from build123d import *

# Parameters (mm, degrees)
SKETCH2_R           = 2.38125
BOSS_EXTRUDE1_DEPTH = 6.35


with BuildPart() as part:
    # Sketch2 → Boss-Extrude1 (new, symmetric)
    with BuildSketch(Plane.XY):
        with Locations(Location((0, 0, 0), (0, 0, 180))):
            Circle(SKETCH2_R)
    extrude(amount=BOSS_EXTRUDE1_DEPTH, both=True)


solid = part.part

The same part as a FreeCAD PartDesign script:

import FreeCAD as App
import Part
import Sketcher
Q = App.Units.Quantity

doc = App.newDocument("Part")
body = doc.addObject("PartDesign::Body", "Body")

# Sketch on XY plane
sketch1 = body.newObject("Sketcher::SketchObject", "Sketch")
sketch1.AttachmentSupport = (doc.getObject("XY_Plane"), [""])
sketch1.MapMode = "FlatFace"
sketch1.addGeometry(Part.Circle(App.Vector(0, 0, 0), App.Vector(0, 0, 1), 2.4), False)
sketch1.addConstraint([
    Sketcher.Constraint("Coincident", 0, 3, -1, 1),
    Sketcher.Constraint("Diameter", 0, Q("0.1875 in")),
])
pad1 = body.newObject("PartDesign::Pad", "Pad")
pad1.Profile = sketch1
pad1.Length = Q("0.5 in")
pad1.Midplane = True

doc.recompute()
